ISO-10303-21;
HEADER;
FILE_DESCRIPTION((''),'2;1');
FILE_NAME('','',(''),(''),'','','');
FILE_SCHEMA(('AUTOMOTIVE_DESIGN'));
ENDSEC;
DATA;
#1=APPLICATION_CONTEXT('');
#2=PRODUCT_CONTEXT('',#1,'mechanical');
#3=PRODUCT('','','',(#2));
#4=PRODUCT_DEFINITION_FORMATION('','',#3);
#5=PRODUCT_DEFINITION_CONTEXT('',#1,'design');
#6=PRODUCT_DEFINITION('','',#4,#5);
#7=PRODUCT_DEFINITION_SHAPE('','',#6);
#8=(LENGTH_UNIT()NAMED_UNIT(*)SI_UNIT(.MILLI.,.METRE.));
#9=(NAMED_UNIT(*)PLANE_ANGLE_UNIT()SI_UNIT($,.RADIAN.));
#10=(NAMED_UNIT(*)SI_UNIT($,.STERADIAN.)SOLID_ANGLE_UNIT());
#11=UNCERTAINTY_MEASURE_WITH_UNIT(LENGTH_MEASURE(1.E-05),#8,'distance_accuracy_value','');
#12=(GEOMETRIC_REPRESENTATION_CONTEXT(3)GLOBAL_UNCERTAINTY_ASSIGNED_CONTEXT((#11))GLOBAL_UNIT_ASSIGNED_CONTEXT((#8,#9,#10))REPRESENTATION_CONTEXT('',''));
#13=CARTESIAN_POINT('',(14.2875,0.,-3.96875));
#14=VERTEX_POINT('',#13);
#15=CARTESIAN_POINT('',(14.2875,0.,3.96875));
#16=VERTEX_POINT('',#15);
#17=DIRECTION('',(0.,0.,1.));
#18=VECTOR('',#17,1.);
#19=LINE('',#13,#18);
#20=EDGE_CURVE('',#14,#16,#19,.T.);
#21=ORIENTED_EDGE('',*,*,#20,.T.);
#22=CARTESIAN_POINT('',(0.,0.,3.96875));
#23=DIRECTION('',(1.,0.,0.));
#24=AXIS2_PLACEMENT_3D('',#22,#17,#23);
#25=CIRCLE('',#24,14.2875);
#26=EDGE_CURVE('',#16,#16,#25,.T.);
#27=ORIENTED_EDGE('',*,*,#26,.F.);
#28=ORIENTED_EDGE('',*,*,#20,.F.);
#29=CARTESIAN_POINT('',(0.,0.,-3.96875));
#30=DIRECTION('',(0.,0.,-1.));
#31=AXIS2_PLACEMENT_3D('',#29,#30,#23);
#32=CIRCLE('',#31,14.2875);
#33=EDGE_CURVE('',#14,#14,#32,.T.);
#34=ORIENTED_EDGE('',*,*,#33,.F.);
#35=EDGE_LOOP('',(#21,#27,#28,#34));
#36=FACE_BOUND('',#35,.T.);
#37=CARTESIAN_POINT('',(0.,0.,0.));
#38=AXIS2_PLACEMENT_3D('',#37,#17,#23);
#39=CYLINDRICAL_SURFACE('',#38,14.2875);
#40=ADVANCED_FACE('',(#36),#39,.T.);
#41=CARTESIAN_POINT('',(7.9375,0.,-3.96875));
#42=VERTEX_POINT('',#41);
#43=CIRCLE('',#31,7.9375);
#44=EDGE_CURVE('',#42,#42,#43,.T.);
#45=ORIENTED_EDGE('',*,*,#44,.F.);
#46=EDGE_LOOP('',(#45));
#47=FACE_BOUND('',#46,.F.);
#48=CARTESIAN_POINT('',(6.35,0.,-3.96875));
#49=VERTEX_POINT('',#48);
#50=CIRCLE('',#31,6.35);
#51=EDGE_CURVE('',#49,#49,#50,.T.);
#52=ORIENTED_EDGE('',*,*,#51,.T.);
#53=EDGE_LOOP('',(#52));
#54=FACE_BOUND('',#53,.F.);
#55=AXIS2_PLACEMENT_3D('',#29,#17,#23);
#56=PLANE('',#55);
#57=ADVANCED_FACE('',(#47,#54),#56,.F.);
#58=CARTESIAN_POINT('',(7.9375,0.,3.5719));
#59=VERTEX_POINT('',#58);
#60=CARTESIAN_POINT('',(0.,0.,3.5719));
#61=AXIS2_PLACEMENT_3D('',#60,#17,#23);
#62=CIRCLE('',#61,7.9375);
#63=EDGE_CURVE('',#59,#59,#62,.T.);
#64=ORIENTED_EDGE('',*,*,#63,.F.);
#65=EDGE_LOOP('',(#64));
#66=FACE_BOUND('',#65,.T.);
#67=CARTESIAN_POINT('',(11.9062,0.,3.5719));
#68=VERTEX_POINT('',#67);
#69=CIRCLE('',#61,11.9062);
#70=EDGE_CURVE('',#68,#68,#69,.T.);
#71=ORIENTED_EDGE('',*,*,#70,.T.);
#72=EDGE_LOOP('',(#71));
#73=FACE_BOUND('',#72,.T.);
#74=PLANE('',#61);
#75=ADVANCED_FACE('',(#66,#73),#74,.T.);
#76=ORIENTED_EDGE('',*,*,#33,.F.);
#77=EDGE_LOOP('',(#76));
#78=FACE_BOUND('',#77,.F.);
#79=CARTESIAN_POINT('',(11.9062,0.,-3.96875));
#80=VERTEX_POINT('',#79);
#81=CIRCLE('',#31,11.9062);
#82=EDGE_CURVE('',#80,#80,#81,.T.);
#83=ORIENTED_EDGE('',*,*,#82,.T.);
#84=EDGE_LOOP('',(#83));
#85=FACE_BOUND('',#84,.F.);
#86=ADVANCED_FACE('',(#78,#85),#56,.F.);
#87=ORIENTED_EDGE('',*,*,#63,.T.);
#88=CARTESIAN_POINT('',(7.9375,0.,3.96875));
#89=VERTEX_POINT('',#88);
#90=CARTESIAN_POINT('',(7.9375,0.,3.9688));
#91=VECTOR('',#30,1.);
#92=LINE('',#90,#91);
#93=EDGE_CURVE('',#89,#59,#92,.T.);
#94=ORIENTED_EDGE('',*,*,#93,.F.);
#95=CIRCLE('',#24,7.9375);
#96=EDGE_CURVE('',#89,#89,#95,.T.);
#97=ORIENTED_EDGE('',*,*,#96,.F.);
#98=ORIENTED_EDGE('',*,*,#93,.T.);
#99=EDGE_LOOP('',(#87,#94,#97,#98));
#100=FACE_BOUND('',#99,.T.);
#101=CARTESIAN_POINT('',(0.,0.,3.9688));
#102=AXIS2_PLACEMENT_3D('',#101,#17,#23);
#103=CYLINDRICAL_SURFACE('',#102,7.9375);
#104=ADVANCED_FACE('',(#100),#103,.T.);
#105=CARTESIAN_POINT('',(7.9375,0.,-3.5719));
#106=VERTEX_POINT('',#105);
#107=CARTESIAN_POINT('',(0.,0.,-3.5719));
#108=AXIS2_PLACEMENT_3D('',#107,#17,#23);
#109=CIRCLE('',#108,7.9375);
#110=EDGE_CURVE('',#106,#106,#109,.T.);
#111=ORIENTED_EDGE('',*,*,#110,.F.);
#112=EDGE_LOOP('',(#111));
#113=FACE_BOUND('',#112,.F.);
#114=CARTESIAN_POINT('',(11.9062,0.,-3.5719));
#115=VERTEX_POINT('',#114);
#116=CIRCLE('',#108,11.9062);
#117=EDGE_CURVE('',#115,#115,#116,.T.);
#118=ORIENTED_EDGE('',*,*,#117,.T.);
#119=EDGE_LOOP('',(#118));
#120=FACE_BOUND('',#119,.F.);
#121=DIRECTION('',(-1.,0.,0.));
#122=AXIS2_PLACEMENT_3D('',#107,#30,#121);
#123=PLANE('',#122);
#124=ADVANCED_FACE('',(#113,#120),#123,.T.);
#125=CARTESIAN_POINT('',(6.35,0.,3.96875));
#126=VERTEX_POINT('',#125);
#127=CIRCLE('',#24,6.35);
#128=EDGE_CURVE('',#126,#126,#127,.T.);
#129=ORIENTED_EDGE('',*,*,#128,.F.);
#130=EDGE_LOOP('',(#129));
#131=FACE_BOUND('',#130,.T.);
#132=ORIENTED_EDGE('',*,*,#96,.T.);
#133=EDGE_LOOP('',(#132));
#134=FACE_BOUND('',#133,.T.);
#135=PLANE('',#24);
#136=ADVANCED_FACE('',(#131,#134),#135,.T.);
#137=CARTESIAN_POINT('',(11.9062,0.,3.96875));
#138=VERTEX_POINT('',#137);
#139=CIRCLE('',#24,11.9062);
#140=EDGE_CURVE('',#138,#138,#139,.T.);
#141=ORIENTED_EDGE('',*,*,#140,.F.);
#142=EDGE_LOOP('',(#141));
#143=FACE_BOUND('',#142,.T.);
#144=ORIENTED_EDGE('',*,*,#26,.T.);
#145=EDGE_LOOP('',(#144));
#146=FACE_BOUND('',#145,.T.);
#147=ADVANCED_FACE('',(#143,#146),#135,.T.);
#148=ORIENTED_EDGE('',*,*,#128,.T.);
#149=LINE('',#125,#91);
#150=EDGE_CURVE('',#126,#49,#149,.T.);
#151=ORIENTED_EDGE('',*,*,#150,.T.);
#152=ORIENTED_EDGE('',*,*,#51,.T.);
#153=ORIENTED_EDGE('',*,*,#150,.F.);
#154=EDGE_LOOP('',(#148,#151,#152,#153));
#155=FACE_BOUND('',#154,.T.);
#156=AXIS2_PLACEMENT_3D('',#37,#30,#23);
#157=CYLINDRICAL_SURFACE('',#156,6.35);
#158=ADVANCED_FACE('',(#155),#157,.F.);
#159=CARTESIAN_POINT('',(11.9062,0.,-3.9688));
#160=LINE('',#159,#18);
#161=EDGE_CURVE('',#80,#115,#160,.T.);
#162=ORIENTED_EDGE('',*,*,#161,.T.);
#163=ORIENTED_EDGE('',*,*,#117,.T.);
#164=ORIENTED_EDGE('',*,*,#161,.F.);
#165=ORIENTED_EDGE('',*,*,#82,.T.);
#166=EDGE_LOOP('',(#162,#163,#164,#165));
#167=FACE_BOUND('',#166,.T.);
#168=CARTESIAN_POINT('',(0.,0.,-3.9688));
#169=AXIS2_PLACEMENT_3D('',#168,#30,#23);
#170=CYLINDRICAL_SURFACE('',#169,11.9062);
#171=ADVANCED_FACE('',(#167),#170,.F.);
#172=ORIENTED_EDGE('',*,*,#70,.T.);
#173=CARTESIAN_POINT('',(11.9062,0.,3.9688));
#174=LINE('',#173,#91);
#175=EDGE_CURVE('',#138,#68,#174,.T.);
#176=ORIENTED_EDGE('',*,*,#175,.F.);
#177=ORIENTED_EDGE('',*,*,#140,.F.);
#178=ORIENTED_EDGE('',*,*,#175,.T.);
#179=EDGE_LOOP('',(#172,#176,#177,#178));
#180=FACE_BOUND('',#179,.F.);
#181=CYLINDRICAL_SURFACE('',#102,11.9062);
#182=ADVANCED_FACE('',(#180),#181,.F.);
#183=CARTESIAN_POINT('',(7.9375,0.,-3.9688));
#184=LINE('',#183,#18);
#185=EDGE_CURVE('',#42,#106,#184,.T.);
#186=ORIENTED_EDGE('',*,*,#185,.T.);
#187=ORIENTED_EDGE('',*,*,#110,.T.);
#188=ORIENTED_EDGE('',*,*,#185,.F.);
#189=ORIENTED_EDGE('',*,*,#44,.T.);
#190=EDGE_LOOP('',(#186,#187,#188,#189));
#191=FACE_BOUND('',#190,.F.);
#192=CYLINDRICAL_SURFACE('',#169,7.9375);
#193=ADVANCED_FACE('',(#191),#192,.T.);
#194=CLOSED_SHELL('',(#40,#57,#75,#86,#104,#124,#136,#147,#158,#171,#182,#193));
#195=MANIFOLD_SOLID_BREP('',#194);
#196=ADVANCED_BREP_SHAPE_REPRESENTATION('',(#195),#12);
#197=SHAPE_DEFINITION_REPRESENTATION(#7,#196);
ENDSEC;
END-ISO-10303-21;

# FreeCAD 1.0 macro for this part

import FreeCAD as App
import Part
import Sketcher
Q = App.Units.Quantity

doc = App.newDocument("Part")
params = doc.addObject("Spreadsheet::Sheet", "Params")
for row, (alias, value) in enumerate([
    ("sketch1_diameter", "0.5 in"),
    ("sketch1_diameter2", "1.125 in"),
    ("pad1_length", "0.3125 in"),
    ("sketch2_diameter", "0.9375 in"),
    ("sketch2_diameter2", "0.625 in"),
    ("pocket1_length", "0.015626 in"),
], start=1):
    params.set(f"A{row}", alias)
    params.set(f"B{row}", "=" + value)
    params.setAlias(f"B{row}", alias)

body = doc.addObject("PartDesign::Body", "Body")

# Sketch on XY plane
sketch1 = doc.addObject("Sketcher::SketchObject", "Sketch")
body.addObject(sketch1)
sketch1.AttachmentSupport = (doc.XY_Plane, [""])
sketch1.MapMode = "FlatFace"
sketch1.addGeometry(Part.Circle(App.Vector(0, 0, 0), App.Vector(0, 0, 1), 14), False)
sketch1.addGeometry(Part.Circle(App.Vector(0, 0, 0), App.Vector(0, 0, 1), 6), False)
sketch1.addConstraint(Sketcher.Constraint("Coincident", 0, 3, -1, 1))
sketch1.addConstraint(Sketcher.Constraint("Coincident", 1, 3, -1, 1))
sketch1.addConstraint(Sketcher.Constraint("Diameter", 1, Q("0.5 in")))
sketch1.addConstraint(Sketcher.Constraint("Diameter", 0, Q("1.125 in")))
sketch1.setExpression("Constraints[2]", "Params.sketch1_diameter")
sketch1.setExpression("Constraints[3]", "Params.sketch1_diameter2")
pad1 = doc.addObject("PartDesign::Pad", "Pad")
body.addObject(pad1)
pad1.Profile = sketch1
pad1.setExpression("Length", "Params.pad1_length")
pad1.Midplane = True

# Sketch on XY plane
sketch2 = doc.addObject("Sketcher::SketchObject", "Sketch001")
body.addObject(sketch2)
sketch2.AttachmentSupport = (doc.XY_Plane, [""])
sketch2.MapMode = "FlatFace"
sketch2.AttachmentOffset = App.Placement(App.Vector(0, 0, 0.156252 * 25.4), App.Rotation())
sketch2.addGeometry(Part.Circle(App.Vector(0, 0, 0), App.Vector(0, 0, 1), 12), False)
sketch2.addGeometry(Part.Circle(App.Vector(0, 0, 0), App.Vector(0, 0, 1), 8), False)
sketch2.addConstraint(Sketcher.Constraint("Coincident", 0, 3, -1, 1))
sketch2.addConstraint(Sketcher.Constraint("Coincident", 1, 3, -1, 1))
sketch2.addConstraint(Sketcher.Constraint("Diameter", 0, Q("0.9375 in")))
sketch2.addConstraint(Sketcher.Constraint("Diameter", 1, Q("0.625 in")))
sketch2.setExpression("Constraints[2]", "Params.sketch2_diameter")
sketch2.setExpression("Constraints[3]", "Params.sketch2_diameter2")
pocket1 = doc.addObject("PartDesign::Pocket", "Pocket")
body.addObject(pocket1)
pocket1.Profile = sketch2
pocket1.setExpression("Length", "Params.pocket1_length")
doc.recompute()

mirrored = doc.addObject("PartDesign::Mirrored", "Mirrored")
body.addObject(mirrored)
mirrored.Originals = [pocket1]
mirrored.MirrorPlane = (doc.XY_Plane, [""])
body.Tip = mirrored

doc.recompute()
